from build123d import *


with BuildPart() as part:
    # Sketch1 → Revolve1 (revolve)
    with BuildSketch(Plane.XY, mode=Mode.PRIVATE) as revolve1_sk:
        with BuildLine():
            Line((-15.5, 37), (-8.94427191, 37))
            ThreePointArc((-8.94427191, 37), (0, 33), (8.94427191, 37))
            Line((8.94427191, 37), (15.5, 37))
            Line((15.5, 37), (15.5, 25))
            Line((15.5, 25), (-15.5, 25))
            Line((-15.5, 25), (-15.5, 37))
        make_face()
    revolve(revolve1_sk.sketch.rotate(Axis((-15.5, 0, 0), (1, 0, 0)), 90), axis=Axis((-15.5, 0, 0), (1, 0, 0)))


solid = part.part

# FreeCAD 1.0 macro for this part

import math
import FreeCAD as App
import Part
import Sketcher

doc = App.newDocument("Part")
body = doc.addObject("PartDesign::Body", "Body")

# Sketch on XY plane
sketch1 = body.newObject("Sketcher::SketchObject", "Sketch")
sketch1.AttachmentSupport = (doc.getObject("XY_Plane"), [""])
sketch1.MapMode = "FlatFace"
sketch1.addGeometry(Part.LineSegment(App.Vector(-8.944272, 37, 0), App.Vector(-15.5, 37, 0)), False)
sketch1.addGeometry(Part.LineSegment(App.Vector(-15.5, 37, 0), App.Vector(-15.5, 25, 0)), False)
sketch1.addGeometry(Part.LineSegment(App.Vector(-15.5, 25, 0), App.Vector(15.5, 25, 0)), False)
sketch1.addGeometry(Part.LineSegment(App.Vector(15.5, 25, 0), App.Vector(15.5, 37, 0)), False)
sketch1.addGeometry(Part.LineSegment(App.Vector(15.5, 37, 0), App.Vector(8.944272, 37, 0)), False)
sketch1.addGeometry(Part.ArcOfCircle(Part.Circle(App.Vector(0, 45, 0), App.Vector(0, 0, 1), 12), math.radians(-138.189685), math.radians(-41.810315)), False)
sketch1.addConstraint(Sketcher.Constraint("Coincident", 0, 2, 1, 1))
sketch1.addConstraint(Sketcher.Constraint("Coincident", 1, 2, 2, 1))
sketch1.addConstraint(Sketcher.Constraint("Coincident", 2, 2, 3, 1))
sketch1.addConstraint(Sketcher.Constraint("Coincident", 3, 2, 4, 1))
sketch1.addConstraint(Sketcher.Constraint("Coincident", 4, 2, 5, 2))
sketch1.addConstraint(Sketcher.Constraint("Coincident", 5, 1, 0, 1))
sketch1.addConstraint(Sketcher.Constraint("Horizontal", 0))
sketch1.addConstraint(Sketcher.Constraint("Vertical", 1))
sketch1.addConstraint(Sketcher.Constraint("Horizontal", 2))
sketch1.addConstraint(Sketcher.Constraint("Vertical", 3))
sketch1.addConstraint(Sketcher.Constraint("Horizontal", 4))
sketch1.addConstraint(Sketcher.Constraint("Symmetric", 0, 2, 3, 2, -2))
sketch1.addConstraint(Sketcher.Constraint("PointOnObject", 5, 3, -2))
sketch1.addConstraint(Sketcher.Constraint("Radius", 5, 12.0))
sketch1.addConstraint(Sketcher.Constraint("DistanceX", 2, 1, 2, 2, 31.0))
sketch1.addConstraint(Sketcher.Constraint("DistanceY", 1, 2, 1, 1, 12.0))
sketch1.addConstraint(Sketcher.Constraint("DistanceY", -1, 1, 5, 3, 45.0))
sketch1.addConstraint(Sketcher.Constraint("DistanceY", -1, 1, 0, 2, 37.0))
revolution = body.newObject("PartDesign::Revolution", "Revolution")
revolution.Profile = sketch1
revolution.ReferenceAxis = (sketch1, ["H_Axis"])
revolution.Angle = 360

doc.recompute()
